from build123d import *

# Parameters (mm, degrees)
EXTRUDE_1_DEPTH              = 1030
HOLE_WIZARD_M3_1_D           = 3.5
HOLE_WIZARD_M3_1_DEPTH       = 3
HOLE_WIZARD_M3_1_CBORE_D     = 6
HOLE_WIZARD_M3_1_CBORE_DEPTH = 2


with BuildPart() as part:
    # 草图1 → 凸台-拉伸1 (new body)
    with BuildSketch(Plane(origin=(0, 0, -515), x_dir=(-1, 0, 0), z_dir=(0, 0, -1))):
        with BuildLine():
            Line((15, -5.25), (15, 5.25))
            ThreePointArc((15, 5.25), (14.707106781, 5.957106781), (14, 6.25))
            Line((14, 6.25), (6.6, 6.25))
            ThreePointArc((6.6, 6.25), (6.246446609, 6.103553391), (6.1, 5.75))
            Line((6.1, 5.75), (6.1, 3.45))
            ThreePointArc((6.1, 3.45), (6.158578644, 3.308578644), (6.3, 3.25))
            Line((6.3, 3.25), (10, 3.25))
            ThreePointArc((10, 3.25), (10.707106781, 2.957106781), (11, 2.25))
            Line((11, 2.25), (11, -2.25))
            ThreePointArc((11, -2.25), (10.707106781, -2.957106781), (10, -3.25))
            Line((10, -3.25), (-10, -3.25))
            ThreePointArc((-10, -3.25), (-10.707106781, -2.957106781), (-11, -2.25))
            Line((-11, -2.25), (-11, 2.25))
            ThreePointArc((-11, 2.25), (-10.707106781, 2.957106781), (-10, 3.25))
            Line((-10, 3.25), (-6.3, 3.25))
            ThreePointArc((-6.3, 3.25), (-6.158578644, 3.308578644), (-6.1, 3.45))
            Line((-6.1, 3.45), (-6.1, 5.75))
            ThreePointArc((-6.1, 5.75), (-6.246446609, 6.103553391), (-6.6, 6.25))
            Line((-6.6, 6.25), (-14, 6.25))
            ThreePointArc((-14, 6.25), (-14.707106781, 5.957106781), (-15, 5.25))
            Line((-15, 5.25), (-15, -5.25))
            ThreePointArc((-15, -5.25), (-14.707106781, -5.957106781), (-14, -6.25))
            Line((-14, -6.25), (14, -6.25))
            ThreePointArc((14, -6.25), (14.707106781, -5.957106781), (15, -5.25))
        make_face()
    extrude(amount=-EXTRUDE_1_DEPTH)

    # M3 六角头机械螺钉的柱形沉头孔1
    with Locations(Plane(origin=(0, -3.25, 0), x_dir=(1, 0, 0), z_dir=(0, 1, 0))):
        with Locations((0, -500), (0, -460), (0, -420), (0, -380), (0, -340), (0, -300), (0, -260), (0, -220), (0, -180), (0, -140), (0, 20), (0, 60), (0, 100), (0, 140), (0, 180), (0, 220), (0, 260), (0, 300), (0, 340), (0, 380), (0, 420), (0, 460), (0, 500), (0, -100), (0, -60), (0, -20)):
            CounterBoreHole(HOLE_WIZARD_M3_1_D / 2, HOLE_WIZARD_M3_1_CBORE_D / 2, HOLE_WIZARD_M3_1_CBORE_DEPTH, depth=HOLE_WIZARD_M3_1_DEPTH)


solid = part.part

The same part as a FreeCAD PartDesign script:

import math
import FreeCAD as App
import Part
import Sketcher

doc = App.newDocument("Part")
body = doc.addObject("PartDesign::Body", "Body")

# Sketch on XY plane
sketch1 = body.newObject("Sketcher::SketchObject", "Sketch")
sketch1.AttachmentSupport = (doc.getObject("XY_Plane"), [""])
sketch1.MapMode = "FlatFace"
sketch1.AttachmentOffset = App.Placement(App.Vector(0, 0, -515), App.Rotation())
sketch1.addGeometry([
    Part.LineSegment(App.Vector(-15, -5.25, 0), App.Vector(-15, 5.25, 0)),  # 0
    Part.ArcOfCircle(Part.Circle(App.Vector(-14, 5.25, 0), App.Vector(0, 0, 1), 1), math.radians(90), math.radians(180)),  # 1
    Part.LineSegment(App.Vector(-14, 6.25, 0), App.Vector(-6.6, 6.25, 0)),  # 2
    Part.ArcOfCircle(Part.Circle(App.Vector(-6.6, 5.75, 0), App.Vector(0, 0, 1), 0.5), math.radians(0), math.radians(90)),  # 3
    Part.LineSegment(App.Vector(-6.1, 5.75, 0), App.Vector(-6.1, 3.45, 0)),  # 4
    Part.ArcOfCircle(Part.Circle(App.Vector(-6.3, 3.45, 0), App.Vector(0, 0, 1), 0.2), math.radians(-90), math.radians(0)),  # 5
    Part.LineSegment(App.Vector(-6.3, 3.25, 0), App.Vector(-10, 3.25, 0)),  # 6
    Part.ArcOfCircle(Part.Circle(App.Vector(-10, 2.25, 0), App.Vector(0, 0, 1), 1), math.radians(90), math.radians(180)),  # 7
    Part.LineSegment(App.Vector(-11, 2.25, 0), App.Vector(-11, -2.25, 0)),  # 8
    Part.ArcOfCircle(Part.Circle(App.Vector(-10, -2.25, 0), App.Vector(0, 0, 1), 1), math.radians(-180), math.radians(-90)),  # 9
    Part.LineSegment(App.Vector(-10, -3.25, 0), App.Vector(10, -3.25, 0)),  # 10
    Part.ArcOfCircle(Part.Circle(App.Vector(10, -2.25, 0), App.Vector(0, 0, 1), 1), math.radians(-90), math.radians(0)),  # 11
    Part.LineSegment(App.Vector(11, -2.25, 0), App.Vector(11, 2.25, 0)),  # 12
    Part.ArcOfCircle(Part.Circle(App.Vector(10, 2.25, 0), App.Vector(0, 0, 1), 1), math.radians(0), math.radians(90)),  # 13
    Part.LineSegment(App.Vector(10, 3.25, 0), App.Vector(6.3, 3.25, 0)),  # 14
    Part.ArcOfCircle(Part.Circle(App.Vector(6.3, 3.45, 0), App.Vector(0, 0, 1), 0.2), math.radians(-180), math.radians(-90)),  # 15
    Part.LineSegment(App.Vector(6.1, 3.45, 0), App.Vector(6.1, 5.75, 0)),  # 16
    Part.ArcOfCircle(Part.Circle(App.Vector(6.6, 5.75, 0), App.Vector(0, 0, 1), 0.5), math.radians(90), math.radians(180)),  # 17
    Part.LineSegment(App.Vector(6.6, 6.25, 0), App.Vector(14, 6.25, 0)),  # 18
    Part.ArcOfCircle(Part.Circle(App.Vector(14, 5.25, 0), App.Vector(0, 0, 1), 1), math.radians(0), math.radians(90)),  # 19
    Part.LineSegment(App.Vector(15, 5.25, 0), App.Vector(15, -5.25, 0)),  # 20
    Part.ArcOfCircle(Part.Circle(App.Vector(14, -5.25, 0), App.Vector(0, 0, 1), 1), math.radians(-90), math.radians(0)),  # 21
    Part.LineSegment(App.Vector(14, -6.25, 0), App.Vector(-14, -6.25, 0)),  # 22
    Part.ArcOfCircle(Part.Circle(App.Vector(-14, -5.25, 0), App.Vector(0, 0, 1), 1), math.radians(-180), math.radians(-90)),  # 23
], False)
sketch1.addConstraint([
    Sketcher.Constraint("Tangent", 0, 2, 1, 2),
    Sketcher.Constraint("Tangent", 1, 1, 2, 1),
    Sketcher.Constraint("Tangent", 2, 2, 3, 2),
    Sketcher.Constraint("Tangent", 3, 1, 4, 1),
    Sketcher.Constraint("Tangent", 4, 2, 5, 2),
    Sketcher.Constraint("Tangent", 5, 1, 6, 1),
    Sketcher.Constraint("Tangent", 6, 2, 7, 1),
    Sketcher.Constraint("Tangent", 7, 2, 8, 1),
    Sketcher.Constraint("Tangent", 8, 2, 9, 1),
    Sketcher.Constraint("Tangent", 9, 2, 10, 1),
    Sketcher.Constraint("Tangent", 10, 2, 11, 1),
    Sketcher.Constraint("Tangent", 11, 2, 12, 1),
    Sketcher.Constraint("Tangent", 12, 2, 13, 1),
    Sketcher.Constraint("Tangent", 13, 2, 14, 1),
    Sketcher.Constraint("Tangent", 14, 2, 15, 2),
    Sketcher.Constraint("Tangent", 15, 1, 16, 1),
    Sketcher.Constraint("Tangent", 16, 2, 17, 2),
    Sketcher.Constraint("Tangent", 17, 1, 18, 1),
    Sketcher.Constraint("Tangent", 18, 2, 19, 2),
    Sketcher.Constraint("Tangent", 19, 1, 20, 1),
    Sketcher.Constraint("Tangent", 20, 2, 21, 2),
    Sketcher.Constraint("Tangent", 21, 1, 22, 1),
    Sketcher.Constraint("Tangent", 22, 2, 23, 2),
    Sketcher.Constraint("Tangent", 23, 1, 0, 1),
    Sketcher.Constraint("Vertical", 0),
    Sketcher.Constraint("Horizontal", 2),
    Sketcher.Constraint("Vertical", 4),
    Sketcher.Constraint("Horizontal", 6),
    Sketcher.Constraint("Vertical", 8),
    Sketcher.Constraint("Horizontal", 10),
    Sketcher.Constraint("Vertical", 12),
    Sketcher.Constraint("Horizontal", 14),
    Sketcher.Constraint("Vertical", 16),
    Sketcher.Constraint("Horizontal", 18),
    Sketcher.Constraint("Vertical", 20),
    Sketcher.Constraint("Horizontal", 22),
    Sketcher.Constraint("Equal", 1, 7),
    Sketcher.Constraint("Equal", 7, 9),
    Sketcher.Constraint("Equal", 9, 11),
    Sketcher.Constraint("Equal", 11, 13),
    Sketcher.Constraint("Equal", 5, 15),
    Sketcher.Constraint("Equal", 3, 17),
    Sketcher.Constraint("Equal", 13, 19),
    Sketcher.Constraint("Equal", 19, 21),
    Sketcher.Constraint("Equal", 21, 23),
    Sketcher.Constraint("Symmetric", 7, 3, 11, 3, -1, 1),
    Sketcher.Constraint("Symmetric", 1, 3, 21, 3, -1, 1),
    Sketcher.Constraint("Symmetric", 5, 3, 15, 3, -2),
    Sketcher.Constraint("Horizontal", 3, 3, 17, 3),
    Sketcher.Constraint("Radius", 1, 1.0),
    Sketcher.Constraint("Radius", 3, 0.5),
    Sketcher.Constraint("Radius", 5, 0.2),
    Sketcher.Constraint("DistanceX", 10, 1, 10, 2, 20.0),
    Sketcher.Constraint("DistanceX", 22, 2, 22, 1, 28.0),
    Sketcher.Constraint("DistanceX", 2, 1, 2, 2, 7.4),
    Sketcher.Constraint("DistanceY", 0, 1, 0, 2, 10.5),
    Sketcher.Constraint("DistanceY", 4, 2, 4, 1, 2.3),
])
pad1 = body.newObject("PartDesign::Pad", "Pad")
pad1.Profile = sketch1
pad1.Length = 1030

# Sketch on XZ plane
sketch2 = body.newObject("Sketcher::SketchObject", "Sketch001")
sketch2.AttachmentSupport = (doc.getObject("XZ_Plane"), [""])
sketch2.MapMode = "FlatFace"
sketch2.AttachmentOffset = App.Placement(App.Vector(0, 0, 3.25), App.Rotation())
sketch2.addGeometry([
    Part.Circle(App.Vector(0, 500, 0), App.Vector(0, 0, 1), 1.8),  # 0
    Part.Circle(App.Vector(0, 460, 0), App.Vector(0, 0, 1), 1.8),  # 1
    Part.Circle(App.Vector(0, 420, 0), App.Vector(0, 0, 1), 1.8),  # 2
    Part.Circle(App.Vector(0, 380, 0), App.Vector(0, 0, 1), 1.8),  # 3
    Part.Circle(App.Vector(0, 340, 0), App.Vector(0, 0, 1), 1.8),  # 4
    Part.Circle(App.Vector(0, 300, 0), App.Vector(0, 0, 1), 1.8),  # 5
    Part.Circle(App.Vector(0, 260, 0), App.Vector(0, 0, 1), 1.8),  # 6
    Part.Circle(App.Vector(0, 220, 0), App.Vector(0, 0, 1), 1.8),  # 7
    Part.Circle(App.Vector(0, 180, 0), App.Vector(0, 0, 1), 1.8),  # 8
    Part.Circle(App.Vector(0, 140, 0), App.Vector(0, 0, 1), 1.8),  # 9
    Part.Circle(App.Vector(0, -20, 0), App.Vector(0, 0, 1), 1.8),  # 10
    Part.Circle(App.Vector(0, -60, 0), App.Vector(0, 0, 1), 1.8),  # 11
    Part.Circle(App.Vector(0, -100, 0), App.Vector(0, 0, 1), 1.8),  # 12
    Part.Circle(App.Vector(0, -140, 0), App.Vector(0, 0, 1), 1.8),  # 13
    Part.Circle(App.Vector(0, -180, 0), App.Vector(0, 0, 1), 1.8),  # 14
    Part.Circle(App.Vector(0, -220, 0), App.Vector(0, 0, 1), 1.8),  # 15
    Part.Circle(App.Vector(0, -260, 0), App.Vector(0, 0, 1), 1.8),  # 16
    Part.Circle(App.Vector(0, -300, 0), App.Vector(0, 0, 1), 1.8),  # 17
    Part.Circle(App.Vector(0, -340, 0), App.Vector(0, 0, 1), 1.8),  # 18
    Part.Circle(App.Vector(0, -380, 0), App.Vector(0, 0, 1), 1.8),  # 19
    Part.Circle(App.Vector(0, -420, 0), App.Vector(0, 0, 1), 1.8),  # 20
    Part.Circle(App.Vector(0, -460, 0), App.Vector(0, 0, 1), 1.8),  # 21
    Part.Circle(App.Vector(0, -500, 0), App.Vector(0, 0, 1), 1.8),  # 22
    Part.Circle(App.Vector(0, 100, 0), App.Vector(0, 0, 1), 1.8),  # 23
    Part.Circle(App.Vector(0, 60, 0), App.Vector(0, 0, 1), 1.8),  # 24
    Part.Circle(App.Vector(0, 20, 0), App.Vector(0, 0, 1), 1.8),  # 25
], False)
sketch2.addConstraint([
    Sketcher.Constraint("Equal", 0, 1),
    Sketcher.Constraint("Equal", 1, 2),
    Sketcher.Constraint("Equal", 2, 3),
    Sketcher.Constraint("Equal", 3, 4),
    Sketcher.Constraint("Equal", 4, 5),
    Sketcher.Constraint("Equal", 5, 6),
    Sketcher.Constraint("Equal", 6, 7),
    Sketcher.Constraint("Equal", 7, 8),
    Sketcher.Constraint("Equal", 8, 9),
    Sketcher.Constraint("Equal", 9, 10),
    Sketcher.Constraint("Equal", 10, 11),
    Sketcher.Constraint("Equal", 11, 12),
    Sketcher.Constraint("Equal", 12, 13),
    Sketcher.Constraint("Equal", 13, 14),
    Sketcher.Constraint("Equal", 14, 15),
    Sketcher.Constraint("Equal", 15, 16),
    Sketcher.Constraint("Equal", 16, 17),
    Sketcher.Constraint("Equal", 17, 18),
    Sketcher.Constraint("Equal", 18, 19),
    Sketcher.Constraint("Equal", 19, 20),
    Sketcher.Constraint("Equal", 20, 21),
    Sketcher.Constraint("Equal", 21, 22),
    Sketcher.Constraint("Equal", 22, 23),
    Sketcher.Constraint("Equal", 23, 24),
    Sketcher.Constraint("Equal", 24, 25),
    Sketcher.Constraint("Symmetric", 9, 3, 13, 3, -1, 1),
    Sketcher.Constraint("Symmetric", 8, 3, 14, 3, -1, 1),
    Sketcher.Constraint("Symmetric", 7, 3, 15, 3, -1, 1),
    Sketcher.Constraint("Symmetric", 6, 3, 16, 3, -1, 1),
    Sketcher.Constraint("Symmetric", 5, 3, 17, 3, -1, 1),
    Sketcher.Constraint("Symmetric", 4, 3, 18, 3, -1, 1),
    Sketcher.Constraint("Symmetric", 3, 3, 19, 3, -1, 1),
    Sketcher.Constraint("Symmetric", 2, 3, 20, 3, -1, 1),
    Sketcher.Constraint("Symmetric", 1, 3, 21, 3, -1, 1),
    Sketcher.Constraint("Symmetric", 0, 3, 22, 3, -1, 1),
    Sketcher.Constraint("Symmetric", 12, 3, 23, 3, -1, 1),
    Sketcher.Constraint("Symmetric", 11, 3, 24, 3, -1, 1),
    Sketcher.Constraint("Symmetric", 10, 3, 25, 3, -1, 1),
    Sketcher.Constraint("PointOnObject", 0, 3, -2),
    Sketcher.Constraint("PointOnObject", 1, 3, -2),
    Sketcher.Constraint("PointOnObject", 2, 3, -2),
    Sketcher.Constraint("PointOnObject", 3, 3, -2),
    Sketcher.Constraint("PointOnObject", 4, 3, -2),
    Sketcher.Constraint("PointOnObject", 5, 3, -2),
    Sketcher.Constraint("PointOnObject", 6, 3, -2),
    Sketcher.Constraint("PointOnObject", 7, 3, -2),
    Sketcher.Constraint("PointOnObject", 8, 3, -2),
    Sketcher.Constraint("PointOnObject", 9, 3, -2),
    Sketcher.Constraint("PointOnObject", 10, 3, -2),
    Sketcher.Constraint("PointOnObject", 11, 3, -2),
    Sketcher.Constraint("PointOnObject", 12, 3, -2),
    Sketcher.Constraint("Diameter", 0, 3.5),
    Sketcher.Constraint("DistanceY", -1, 1, 0, 3, 500.0),
    Sketcher.Constraint("DistanceY", -1, 1, 1, 3, 460.0),
    Sketcher.Constraint("DistanceY", -1, 1, 2, 3, 420.0),
    Sketcher.Constraint("DistanceY", -1, 1, 3, 3, 380.0),
    Sketcher.Constraint("DistanceY", -1, 1, 4, 3, 340.0),
    Sketcher.Constraint("DistanceY", -1, 1, 5, 3, 300.0),
    Sketcher.Constraint("DistanceY", -1, 1, 6, 3, 260.0),
    Sketcher.Constraint("DistanceY", -1, 1, 7, 3, 220.0),
    Sketcher.Constraint("DistanceY", -1, 1, 8, 3, 180.0),
    Sketcher.Constraint("DistanceY", -1, 1, 9, 3, 140.0),
    Sketcher.Constraint("DistanceY", 10, 3, -1, 1, 20.0),
    Sketcher.Constraint("DistanceY", 11, 3, -1, 1, 60.0),
    Sketcher.Constraint("DistanceY", 12, 3, -1, 1, 100.0),
])
doc.recompute()
hole = body.newObject("PartDesign::Hole", "Hole")
hole.Profile = sketch2
hole.ThreadType = "None"
hole.Diameter = 3.5
hole.DepthType = "Dimension"
hole.Depth = 3
hole.DrillPoint = "Flat"
hole.HoleCutType = "Counterbore"
hole.HoleCutDiameter = 6
hole.HoleCutDepth = 2
hole.Reversed = True

doc.recompute()
